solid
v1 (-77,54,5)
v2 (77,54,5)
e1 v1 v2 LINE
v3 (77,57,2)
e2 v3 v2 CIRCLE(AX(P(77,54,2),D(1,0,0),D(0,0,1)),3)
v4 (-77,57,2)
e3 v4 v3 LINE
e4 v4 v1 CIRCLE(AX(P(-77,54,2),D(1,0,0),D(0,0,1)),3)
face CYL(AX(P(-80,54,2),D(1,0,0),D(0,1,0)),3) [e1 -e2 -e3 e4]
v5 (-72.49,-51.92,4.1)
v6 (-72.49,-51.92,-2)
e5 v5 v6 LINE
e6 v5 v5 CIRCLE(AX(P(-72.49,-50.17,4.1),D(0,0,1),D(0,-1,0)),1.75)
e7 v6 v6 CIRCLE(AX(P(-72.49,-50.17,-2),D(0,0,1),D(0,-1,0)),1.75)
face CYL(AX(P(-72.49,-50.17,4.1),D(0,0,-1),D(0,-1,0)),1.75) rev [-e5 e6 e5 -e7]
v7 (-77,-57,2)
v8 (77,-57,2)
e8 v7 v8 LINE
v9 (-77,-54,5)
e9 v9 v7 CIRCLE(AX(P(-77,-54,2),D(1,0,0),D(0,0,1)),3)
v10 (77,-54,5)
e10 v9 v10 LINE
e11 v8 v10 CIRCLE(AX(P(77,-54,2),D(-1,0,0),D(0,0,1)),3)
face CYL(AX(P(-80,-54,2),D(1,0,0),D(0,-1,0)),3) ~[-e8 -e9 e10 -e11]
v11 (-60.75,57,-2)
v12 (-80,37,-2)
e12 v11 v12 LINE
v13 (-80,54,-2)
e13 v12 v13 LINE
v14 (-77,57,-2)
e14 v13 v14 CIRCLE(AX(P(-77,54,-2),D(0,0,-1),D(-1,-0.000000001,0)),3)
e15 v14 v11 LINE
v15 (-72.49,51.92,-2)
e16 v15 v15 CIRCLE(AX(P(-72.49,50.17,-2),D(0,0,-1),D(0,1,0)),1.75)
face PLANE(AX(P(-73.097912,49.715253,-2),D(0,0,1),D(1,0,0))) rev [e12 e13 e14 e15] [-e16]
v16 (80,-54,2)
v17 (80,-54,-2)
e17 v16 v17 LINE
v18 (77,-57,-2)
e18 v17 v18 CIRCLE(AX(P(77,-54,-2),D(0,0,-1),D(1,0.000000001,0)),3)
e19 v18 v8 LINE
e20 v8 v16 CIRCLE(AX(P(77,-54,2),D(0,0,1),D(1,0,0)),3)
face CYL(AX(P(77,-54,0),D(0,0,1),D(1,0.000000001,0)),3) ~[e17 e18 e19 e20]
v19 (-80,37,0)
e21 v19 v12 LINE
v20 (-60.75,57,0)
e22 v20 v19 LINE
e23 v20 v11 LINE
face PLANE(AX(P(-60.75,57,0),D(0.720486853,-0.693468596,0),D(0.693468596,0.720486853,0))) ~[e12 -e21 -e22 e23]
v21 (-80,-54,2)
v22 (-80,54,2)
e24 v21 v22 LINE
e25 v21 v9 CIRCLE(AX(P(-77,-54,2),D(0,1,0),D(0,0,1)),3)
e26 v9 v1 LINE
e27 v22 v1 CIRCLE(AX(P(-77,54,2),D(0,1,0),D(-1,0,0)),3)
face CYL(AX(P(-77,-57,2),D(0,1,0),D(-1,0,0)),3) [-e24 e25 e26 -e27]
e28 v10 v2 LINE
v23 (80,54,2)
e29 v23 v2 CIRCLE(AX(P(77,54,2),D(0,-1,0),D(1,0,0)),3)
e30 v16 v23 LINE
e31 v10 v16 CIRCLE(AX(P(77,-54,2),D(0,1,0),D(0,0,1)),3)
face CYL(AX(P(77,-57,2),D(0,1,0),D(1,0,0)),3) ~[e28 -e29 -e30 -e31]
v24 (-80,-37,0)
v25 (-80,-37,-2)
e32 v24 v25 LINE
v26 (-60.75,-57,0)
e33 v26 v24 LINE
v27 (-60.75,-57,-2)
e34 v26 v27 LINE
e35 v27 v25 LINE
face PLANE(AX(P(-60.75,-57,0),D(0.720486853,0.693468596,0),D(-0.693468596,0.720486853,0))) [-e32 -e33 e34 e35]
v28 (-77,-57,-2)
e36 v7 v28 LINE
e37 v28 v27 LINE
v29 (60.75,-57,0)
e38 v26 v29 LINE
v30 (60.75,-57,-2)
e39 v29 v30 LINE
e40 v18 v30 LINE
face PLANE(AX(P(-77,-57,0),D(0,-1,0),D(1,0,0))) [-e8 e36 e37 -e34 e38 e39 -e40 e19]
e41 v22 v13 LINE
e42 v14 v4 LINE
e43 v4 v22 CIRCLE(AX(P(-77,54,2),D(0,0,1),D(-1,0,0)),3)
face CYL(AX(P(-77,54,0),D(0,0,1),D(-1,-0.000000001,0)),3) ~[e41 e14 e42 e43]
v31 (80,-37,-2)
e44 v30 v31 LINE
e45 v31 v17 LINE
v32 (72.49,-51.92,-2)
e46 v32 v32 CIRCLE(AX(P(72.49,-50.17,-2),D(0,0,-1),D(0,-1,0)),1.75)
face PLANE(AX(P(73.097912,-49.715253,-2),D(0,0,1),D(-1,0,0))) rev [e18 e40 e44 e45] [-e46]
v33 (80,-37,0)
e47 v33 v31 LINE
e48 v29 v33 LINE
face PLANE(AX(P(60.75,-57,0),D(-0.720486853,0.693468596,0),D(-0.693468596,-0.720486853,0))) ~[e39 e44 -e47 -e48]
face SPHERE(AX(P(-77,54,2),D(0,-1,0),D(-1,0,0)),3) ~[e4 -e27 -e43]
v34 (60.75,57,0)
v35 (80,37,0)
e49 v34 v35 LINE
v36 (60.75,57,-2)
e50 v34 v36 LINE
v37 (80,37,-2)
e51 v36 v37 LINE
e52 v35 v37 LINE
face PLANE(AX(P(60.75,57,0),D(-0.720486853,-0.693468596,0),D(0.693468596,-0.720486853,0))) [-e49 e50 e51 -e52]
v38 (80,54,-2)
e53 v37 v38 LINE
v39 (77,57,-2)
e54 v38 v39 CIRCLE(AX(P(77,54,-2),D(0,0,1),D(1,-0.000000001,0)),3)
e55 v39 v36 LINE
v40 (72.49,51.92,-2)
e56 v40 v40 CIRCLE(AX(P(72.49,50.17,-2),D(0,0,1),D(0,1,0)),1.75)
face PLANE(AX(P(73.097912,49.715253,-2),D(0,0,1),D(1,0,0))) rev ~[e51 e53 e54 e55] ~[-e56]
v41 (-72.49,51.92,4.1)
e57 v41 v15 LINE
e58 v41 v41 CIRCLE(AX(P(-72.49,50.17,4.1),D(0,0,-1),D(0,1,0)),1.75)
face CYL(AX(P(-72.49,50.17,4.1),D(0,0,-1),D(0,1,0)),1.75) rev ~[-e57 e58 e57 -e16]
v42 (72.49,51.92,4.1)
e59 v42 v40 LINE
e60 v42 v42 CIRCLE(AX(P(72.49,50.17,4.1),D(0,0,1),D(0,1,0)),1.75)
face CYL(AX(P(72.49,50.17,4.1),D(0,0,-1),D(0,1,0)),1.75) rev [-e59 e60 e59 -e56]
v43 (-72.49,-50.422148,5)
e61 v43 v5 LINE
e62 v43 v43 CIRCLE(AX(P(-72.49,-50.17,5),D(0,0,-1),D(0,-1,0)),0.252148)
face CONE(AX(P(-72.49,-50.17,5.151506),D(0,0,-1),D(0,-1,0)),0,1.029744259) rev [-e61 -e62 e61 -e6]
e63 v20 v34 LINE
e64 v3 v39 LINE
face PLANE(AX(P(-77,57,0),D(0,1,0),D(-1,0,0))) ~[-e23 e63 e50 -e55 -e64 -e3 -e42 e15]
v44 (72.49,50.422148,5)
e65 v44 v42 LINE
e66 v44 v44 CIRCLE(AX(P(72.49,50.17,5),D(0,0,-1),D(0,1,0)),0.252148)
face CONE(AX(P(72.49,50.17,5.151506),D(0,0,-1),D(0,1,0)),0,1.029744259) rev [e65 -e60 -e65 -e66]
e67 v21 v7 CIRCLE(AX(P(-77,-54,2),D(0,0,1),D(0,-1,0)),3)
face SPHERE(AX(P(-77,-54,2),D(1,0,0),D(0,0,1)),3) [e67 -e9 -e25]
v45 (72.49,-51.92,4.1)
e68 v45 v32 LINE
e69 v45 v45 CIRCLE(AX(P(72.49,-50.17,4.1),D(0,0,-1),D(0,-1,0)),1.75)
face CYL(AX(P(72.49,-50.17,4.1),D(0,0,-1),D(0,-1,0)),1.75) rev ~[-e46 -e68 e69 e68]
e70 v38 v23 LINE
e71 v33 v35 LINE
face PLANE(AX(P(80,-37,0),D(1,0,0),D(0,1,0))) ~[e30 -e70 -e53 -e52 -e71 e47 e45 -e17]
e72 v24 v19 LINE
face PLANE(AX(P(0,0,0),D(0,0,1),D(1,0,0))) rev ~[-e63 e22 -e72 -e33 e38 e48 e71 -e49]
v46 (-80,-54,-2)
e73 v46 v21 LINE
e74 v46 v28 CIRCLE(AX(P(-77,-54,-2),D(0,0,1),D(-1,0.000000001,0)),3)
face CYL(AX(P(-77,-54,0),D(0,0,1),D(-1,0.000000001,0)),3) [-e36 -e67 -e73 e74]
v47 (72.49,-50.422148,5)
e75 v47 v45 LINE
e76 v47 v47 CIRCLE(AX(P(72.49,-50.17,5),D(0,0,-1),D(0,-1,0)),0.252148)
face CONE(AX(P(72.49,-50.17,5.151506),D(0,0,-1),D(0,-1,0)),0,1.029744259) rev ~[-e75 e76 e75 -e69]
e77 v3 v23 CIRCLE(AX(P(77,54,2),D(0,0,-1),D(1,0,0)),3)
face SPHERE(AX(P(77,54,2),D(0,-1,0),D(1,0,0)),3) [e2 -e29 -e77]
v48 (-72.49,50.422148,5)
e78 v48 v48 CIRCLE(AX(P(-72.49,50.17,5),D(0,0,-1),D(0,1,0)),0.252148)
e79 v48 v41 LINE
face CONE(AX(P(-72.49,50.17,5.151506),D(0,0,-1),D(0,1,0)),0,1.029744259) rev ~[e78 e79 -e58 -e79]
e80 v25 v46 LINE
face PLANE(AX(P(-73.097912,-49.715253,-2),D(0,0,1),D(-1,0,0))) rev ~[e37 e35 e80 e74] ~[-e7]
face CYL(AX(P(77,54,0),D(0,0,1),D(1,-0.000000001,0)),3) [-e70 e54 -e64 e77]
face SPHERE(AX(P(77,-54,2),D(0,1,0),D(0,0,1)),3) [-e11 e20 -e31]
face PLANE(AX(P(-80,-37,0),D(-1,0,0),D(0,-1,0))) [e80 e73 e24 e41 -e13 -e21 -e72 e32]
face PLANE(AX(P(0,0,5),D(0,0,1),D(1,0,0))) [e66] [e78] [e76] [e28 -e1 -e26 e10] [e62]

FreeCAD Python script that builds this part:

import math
import FreeCAD as App
import Part
import Sketcher

V = App.Vector
Q = App.Units.Quantity


def edges_at(feature, points):
    """Names of the edges that pass closest to the given points."""
    edges = feature.Shape.Edges
    near = lambda p: min(range(len(edges)), key=lambda i: edges[i].distToShape(Part.Vertex(*p))[0])
    return sorted({f"Edge{near(p) + 1}" for p in points})


def add_polygon(sketch, points):
    """Adds a closed chain of lines whose ends are joined by coincident constraints."""
    first, n = sketch.GeometryCount, len(points)
    for a, b in zip(points, points[1:] + points[:1]):
        sketch.addGeometry(Part.LineSegment(App.Vector(*a, 0), App.Vector(*b, 0)), False)
    for i in range(n):
        sketch.addConstraint(Sketcher.Constraint("Coincident", first + i, 2, first + (i + 1) % n, 1))

doc = App.newDocument("Part")
body = doc.addObject("PartDesign::Body", "Body")

# Sketch on XY plane
sketch1 = body.newObject("Sketcher::SketchObject", "Sketch")
sketch1.AttachmentSupport = (doc.getObject("XY_Plane"), [""])
sketch1.MapMode = "FlatFace"
add_polygon(sketch1, [(-80, 57), (-80, -57), (80, -57), (80, 57)])  # lines 0-3
sketch1.addConstraint([
    Sketcher.Constraint("Vertical", 0),
    Sketcher.Constraint("Horizontal", 1),
    Sketcher.Constraint("Vertical", 2),
    Sketcher.Constraint("Horizontal", 3),
    Sketcher.Constraint("Symmetric", 0, 2, 2, 2, -1, 1),
    Sketcher.Constraint("DistanceX", 1, 1, 1, 2, 160.0),
    Sketcher.Constraint("DistanceY", 0, 2, 0, 1, 114.0),
])
pad1 = body.newObject("PartDesign::Pad", "Pad")
pad1.Profile = sketch1
pad1.Length = 5
doc.recompute()

fillet = body.newObject("PartDesign::Fillet", "Fillet")
fillet.Base = (pad1, edges_at(pad1, [
    (80, 0, 5),
    (0, -57, 5),
    (-80, 0, 5),
    (-80, -57, 2.5),
    (80, -57, 2.5),
    (80, 57, 2.5),
    (-80, 57, 2.5),
    (0, 57, 5),
]))
fillet.Radius = 3

# Sketch on XY plane
sketch2 = body.newObject("Sketcher::SketchObject", "Sketch001")
sketch2.AttachmentSupport = (doc.getObject("XY_Plane"), [""])
sketch2.MapMode = "FlatFace"
sketch2.addGeometry([
    Part.LineSegment(V(80, 37, 0), V(60.8, 57, 0)),
    Part.LineSegment(V(60.8, 57, 0), V(77, 57, 0)),
    Part.ArcOfCircle(Part.Circle(V(77, 54, 0), V(0, 0, 1), 3), math.radians(0), math.radians(90)),
    Part.LineSegment(V(80, 54, 0), V(80, 37, 0)),
], False)
sketch2.addConstraint([
    Sketcher.Constraint("Coincident", 0, 2, 1, 1),
    Sketcher.Constraint("Tangent", 1, 2, 2, 2),
    Sketcher.Constraint("Tangent", 2, 1, 3, 1),
    Sketcher.Constraint("Coincident", 3, 2, 0, 1),
    Sketcher.Constraint("Horizontal", 1),
    Sketcher.Constraint("Vertical", 3),
    Sketcher.Constraint("Radius", 2, 3.0),
    Sketcher.Constraint("DistanceY", 3, 2, 3, 1, 17.0),
    Sketcher.Constraint("DistanceX", -1, 1, 2, 3, 77.0),
    Sketcher.Constraint("DistanceY", -1, 1, 2, 3, 54.0),
    Sketcher.Constraint("DistanceX", 1, 1, 1, 2, 16.25),
])
pad2 = body.newObject("PartDesign::Pad", "Pad001")
pad2.Profile = sketch2
pad2.Length = 2
pad2.Reversed = True

# Sketch on YZ plane
sketch3 = body.newObject("Sketcher::SketchObject", "Sketch002")
sketch3.AttachmentSupport = (doc.getObject("YZ_Plane"), [""])
sketch3.MapMode = "FlatFace"
sketch3.AttachmentOffset = App.Placement(V(0, 0, 72.49), App.Rotation())
add_polygon(sketch3, [(50.2, 5.2), (50.2, -2), (51.9, -2), (51.9, 4.1)])  # lines 0-3
sketch3.addGeometry(Part.LineSegment(V(50.2, -2, 0), V(50.2, 5.2, 0)), True)  # axis
sketch3.addConstraint([
    Sketcher.Constraint("Vertical", 0),
    Sketcher.Constraint("Horizontal", 1),
    Sketcher.Constraint("Vertical", 2),
    Sketcher.Constraint("Vertical", 4),
    Sketcher.Constraint("Coincident", 4, 1, 0, 2),
    Sketcher.Constraint("Equal", 0, 4),
    Sketcher.Constraint("Angle", 3, Q("149 deg")),
    Sketcher.Constraint("DistanceY", 2, 1, 2, 2, 6.1),
    Sketcher.Constraint("DistanceY", 0, 2, -1, 1, 2.0),
    Sketcher.Constraint("DistanceX", 1, 1, 1, 2, 1.75),
    Sketcher.Constraint("DistanceX", -1, 1, 0, 2, 50.17),
])
groove = body.newObject("PartDesign::Groove", "Groove")
groove.Profile = sketch3
groove.ReferenceAxis = (sketch3, ["Axis0"])
groove.Angle = 360
doc.recompute()

mirrored = body.newObject("PartDesign::Mirrored", "Mirrored")
mirrored.Originals = [pad2, groove]
mirrored.MirrorPlane = (doc.getObject("XZ_Plane"), [""])
body.Tip = mirrored
doc.recompute()

mirrored2 = body.newObject("PartDesign::Mirrored", "Mirrored001")
mirrored2.Originals = [pad2, groove]
mirrored2.MirrorPlane = (doc.getObject("YZ_Plane"), [""])
body.Tip = mirrored2

# Sketch on XY plane
sketch4 = body.newObject("Sketcher::SketchObject", "Sketch003")
sketch4.AttachmentSupport = (doc.getObject("XY_Plane"), [""])
sketch4.MapMode = "FlatFace"
sketch4.addGeometry([
    Part.LineSegment(V(-80, -37, 0), V(-60.8, -57, 0)),
    Part.LineSegment(V(-60.8, -57, 0), V(-77, -57, 0)),
    Part.ArcOfCircle(Part.Circle(V(-77, -54, 0), V(0, 0, 1), 3), math.radians(180), math.radians(270)),
    Part.LineSegment(V(-80, -54, 0), V(-80, -37, 0)),
], False)
sketch4.addConstraint([
    Sketcher.Constraint("Coincident", 0, 2, 1, 1),
    Sketcher.Constraint("Tangent", 1, 2, 2, 2),
    Sketcher.Constraint("Tangent", 2, 1, 3, 1),
    Sketcher.Constraint("Coincident", 3, 2, 0, 1),
    Sketcher.Constraint("Horizontal", 1),
    Sketcher.Constraint("Vertical", 3),
    Sketcher.Constraint("Radius", 2, 3.0),
    Sketcher.Constraint("DistanceY", 3, 1, 3, 2, 17.0),
    Sketcher.Constraint("DistanceX", 2, 3, -1, 1, 77.0),
    Sketcher.Constraint("DistanceY", 2, 3, -1, 1, 54.0),
    Sketcher.Constraint("DistanceX", 1, 2, 1, 1, 16.25),
])
pad3 = body.newObject("PartDesign::Pad", "Pad002")
pad3.Profile = sketch4
pad3.Length = 2
pad3.Reversed = True

# Sketch on YZ plane
sketch5 = body.newObject("Sketcher::SketchObject", "Sketch004")
sketch5.AttachmentSupport = (doc.getObject("YZ_Plane"), [""])
sketch5.MapMode = "FlatFace"
sketch5.AttachmentOffset = App.Placement(V(0, 0, -72.49), App.Rotation())
add_polygon(sketch5, [(-50.2, 5.2), (-50.2, -2), (-51.9, -2), (-51.9, 4.1)])  # lines 0-3
sketch5.addGeometry(Part.LineSegment(V(-50.2, -2, 0), V(-50.2, 5.2, 0)), True)  # axis
sketch5.addConstraint([
    Sketcher.Constraint("Vertical", 0),
    Sketcher.Constraint("Horizontal", 1),
    Sketcher.Constraint("Vertical", 2),
    Sketcher.Constraint("Vertical", 4),
    Sketcher.Constraint("Coincident", 4, 1, 0, 2),
    Sketcher.Constraint("Equal", 0, 4),
    Sketcher.Constraint("Angle", 3, Q("31 deg")),
    Sketcher.Constraint("DistanceY", 2, 1, 2, 2, 6.1),
    Sketcher.Constraint("DistanceY", 0, 2, -1, 1, 2.0),
    Sketcher.Constraint("DistanceX", 1, 2, 1, 1, 1.75),
    Sketcher.Constraint("DistanceX", 0, 2, -1, 1, 50.17),
])
groove2 = body.newObject("PartDesign::Groove", "Groove001")
groove2.Profile = sketch5
groove2.ReferenceAxis = (sketch5, ["Axis0"])
groove2.Angle = 360

doc.recompute()
